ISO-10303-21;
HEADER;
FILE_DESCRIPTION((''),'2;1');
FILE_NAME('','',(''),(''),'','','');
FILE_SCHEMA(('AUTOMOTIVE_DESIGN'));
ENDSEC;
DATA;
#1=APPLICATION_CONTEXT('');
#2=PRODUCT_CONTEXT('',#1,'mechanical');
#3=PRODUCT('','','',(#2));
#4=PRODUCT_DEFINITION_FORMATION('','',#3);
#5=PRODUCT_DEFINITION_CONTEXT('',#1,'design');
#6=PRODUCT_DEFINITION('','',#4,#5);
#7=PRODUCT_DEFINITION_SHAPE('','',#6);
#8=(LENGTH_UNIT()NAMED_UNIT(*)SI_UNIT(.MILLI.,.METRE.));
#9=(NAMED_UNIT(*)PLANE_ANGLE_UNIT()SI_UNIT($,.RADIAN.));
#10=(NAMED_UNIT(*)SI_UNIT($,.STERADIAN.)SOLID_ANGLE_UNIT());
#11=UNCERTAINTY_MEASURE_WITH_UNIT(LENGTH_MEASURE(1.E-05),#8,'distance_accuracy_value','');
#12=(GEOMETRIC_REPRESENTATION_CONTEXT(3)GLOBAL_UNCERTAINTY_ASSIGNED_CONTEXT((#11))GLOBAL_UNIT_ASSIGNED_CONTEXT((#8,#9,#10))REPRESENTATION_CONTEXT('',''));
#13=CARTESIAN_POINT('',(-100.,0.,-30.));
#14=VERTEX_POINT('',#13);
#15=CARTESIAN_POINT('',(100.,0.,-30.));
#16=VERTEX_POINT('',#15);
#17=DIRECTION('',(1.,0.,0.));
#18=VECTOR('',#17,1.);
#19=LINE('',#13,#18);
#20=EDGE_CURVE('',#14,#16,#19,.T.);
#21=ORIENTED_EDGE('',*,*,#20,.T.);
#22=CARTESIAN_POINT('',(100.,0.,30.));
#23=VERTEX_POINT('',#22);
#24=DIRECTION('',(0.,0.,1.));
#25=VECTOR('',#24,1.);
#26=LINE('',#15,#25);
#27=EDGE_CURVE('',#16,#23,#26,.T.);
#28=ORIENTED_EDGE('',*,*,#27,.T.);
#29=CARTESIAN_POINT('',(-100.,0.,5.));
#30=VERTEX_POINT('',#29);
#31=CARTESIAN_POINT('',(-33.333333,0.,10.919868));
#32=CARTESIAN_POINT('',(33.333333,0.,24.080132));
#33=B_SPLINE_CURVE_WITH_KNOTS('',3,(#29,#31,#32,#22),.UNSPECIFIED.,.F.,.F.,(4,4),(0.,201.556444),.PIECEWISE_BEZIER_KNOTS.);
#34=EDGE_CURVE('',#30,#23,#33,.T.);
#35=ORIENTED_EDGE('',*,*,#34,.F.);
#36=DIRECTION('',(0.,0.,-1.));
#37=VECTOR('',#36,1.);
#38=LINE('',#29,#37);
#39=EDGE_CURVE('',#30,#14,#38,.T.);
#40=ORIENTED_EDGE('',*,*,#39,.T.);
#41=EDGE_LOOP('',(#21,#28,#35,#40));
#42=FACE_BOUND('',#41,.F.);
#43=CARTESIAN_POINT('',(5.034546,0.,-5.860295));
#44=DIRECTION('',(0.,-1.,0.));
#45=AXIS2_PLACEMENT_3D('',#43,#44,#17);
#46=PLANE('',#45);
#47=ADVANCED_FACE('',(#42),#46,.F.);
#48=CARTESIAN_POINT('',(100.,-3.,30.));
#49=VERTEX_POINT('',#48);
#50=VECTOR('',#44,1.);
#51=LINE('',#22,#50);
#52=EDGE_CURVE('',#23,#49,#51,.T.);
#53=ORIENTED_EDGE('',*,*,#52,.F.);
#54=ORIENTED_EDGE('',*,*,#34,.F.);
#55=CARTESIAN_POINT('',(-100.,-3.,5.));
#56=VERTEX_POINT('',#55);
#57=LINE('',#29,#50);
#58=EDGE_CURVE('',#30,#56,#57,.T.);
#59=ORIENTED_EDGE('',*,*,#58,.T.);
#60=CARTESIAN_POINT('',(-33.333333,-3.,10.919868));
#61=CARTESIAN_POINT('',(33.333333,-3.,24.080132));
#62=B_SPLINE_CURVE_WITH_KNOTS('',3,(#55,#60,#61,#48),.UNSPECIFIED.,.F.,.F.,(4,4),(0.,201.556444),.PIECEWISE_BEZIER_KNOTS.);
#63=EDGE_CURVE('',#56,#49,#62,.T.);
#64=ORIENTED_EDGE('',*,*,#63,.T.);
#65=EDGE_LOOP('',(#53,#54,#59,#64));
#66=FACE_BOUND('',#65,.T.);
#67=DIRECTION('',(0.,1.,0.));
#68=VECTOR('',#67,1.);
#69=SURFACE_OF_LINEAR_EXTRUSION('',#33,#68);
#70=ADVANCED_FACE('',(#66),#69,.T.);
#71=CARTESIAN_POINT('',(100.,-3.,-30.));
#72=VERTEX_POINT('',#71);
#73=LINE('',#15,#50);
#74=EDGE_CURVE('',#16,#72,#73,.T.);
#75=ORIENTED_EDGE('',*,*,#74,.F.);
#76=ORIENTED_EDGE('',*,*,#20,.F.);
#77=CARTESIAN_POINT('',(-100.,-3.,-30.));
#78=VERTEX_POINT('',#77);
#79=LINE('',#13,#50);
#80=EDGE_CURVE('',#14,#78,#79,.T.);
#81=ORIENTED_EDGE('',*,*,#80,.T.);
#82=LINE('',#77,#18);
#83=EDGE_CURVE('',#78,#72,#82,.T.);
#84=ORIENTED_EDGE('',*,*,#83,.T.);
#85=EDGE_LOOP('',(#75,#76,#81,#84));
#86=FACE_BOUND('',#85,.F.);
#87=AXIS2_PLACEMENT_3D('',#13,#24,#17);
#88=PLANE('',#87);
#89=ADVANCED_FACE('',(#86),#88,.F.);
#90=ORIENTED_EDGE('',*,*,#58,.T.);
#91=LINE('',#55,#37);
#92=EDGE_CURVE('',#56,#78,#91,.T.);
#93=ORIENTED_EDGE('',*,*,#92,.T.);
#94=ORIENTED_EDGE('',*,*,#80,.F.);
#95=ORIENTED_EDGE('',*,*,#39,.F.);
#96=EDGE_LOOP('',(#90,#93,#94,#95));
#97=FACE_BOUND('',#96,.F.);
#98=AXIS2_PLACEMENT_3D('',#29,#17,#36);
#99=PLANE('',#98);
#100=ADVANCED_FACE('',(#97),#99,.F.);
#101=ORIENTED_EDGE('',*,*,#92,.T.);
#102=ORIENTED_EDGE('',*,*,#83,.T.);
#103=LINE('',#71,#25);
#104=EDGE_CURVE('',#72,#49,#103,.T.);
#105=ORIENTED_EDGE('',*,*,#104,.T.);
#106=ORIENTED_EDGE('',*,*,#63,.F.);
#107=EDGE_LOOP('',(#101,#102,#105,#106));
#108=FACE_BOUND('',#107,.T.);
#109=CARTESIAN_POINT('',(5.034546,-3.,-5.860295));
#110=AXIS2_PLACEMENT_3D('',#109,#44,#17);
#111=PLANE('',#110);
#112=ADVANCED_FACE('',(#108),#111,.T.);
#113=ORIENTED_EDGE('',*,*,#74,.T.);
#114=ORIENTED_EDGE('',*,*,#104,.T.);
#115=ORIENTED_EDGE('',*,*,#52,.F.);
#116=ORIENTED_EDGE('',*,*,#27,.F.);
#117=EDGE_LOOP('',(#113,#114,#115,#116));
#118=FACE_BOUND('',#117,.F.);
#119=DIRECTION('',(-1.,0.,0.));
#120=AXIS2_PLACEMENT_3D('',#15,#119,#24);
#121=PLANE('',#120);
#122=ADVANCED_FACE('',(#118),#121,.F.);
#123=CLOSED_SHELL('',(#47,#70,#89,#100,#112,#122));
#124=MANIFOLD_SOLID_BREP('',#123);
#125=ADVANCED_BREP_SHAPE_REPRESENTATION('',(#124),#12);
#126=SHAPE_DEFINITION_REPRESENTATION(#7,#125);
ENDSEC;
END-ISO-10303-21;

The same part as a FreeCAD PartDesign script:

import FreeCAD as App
import Part
import Sketcher

V = App.Vector
Q = App.Units.Quantity

doc = App.newDocument("Part")
body = doc.addObject("PartDesign::Body", "Body")

sketch1 = body.newObject("Sketcher::SketchObject", "Sketch")
sketch1.AttachmentSupport = (doc.getObject("XZ_Plane"), [""])
sketch1.MapMode = "FlatFace"
sketch1.addGeometry(Part.LineSegment(V(-100, -30, 0), V(100, -30, 0)), False)
sketch1.addGeometry(Part.LineSegment(V(100, -30, 0), V(100, 30, 0)), False)
sketch1.addGeometry(Part.BSplineCurve([V(-100, 5, 0), V(-33.333333, 10.919868, 0), V(33.333333, 24.080132, 0), V(100, 30, 0)], [4, 4], [0, 201.556444], False, 3, [1, 1, 1, 1], False), False)
sketch1.addGeometry(Part.LineSegment(V(-100, 5, 0), V(-100, -30, 0)), False)
sketch1.addConstraint(Sketcher.Constraint("Block", 2))
sketch1.addConstraint(Sketcher.Constraint("Coincident", 0, 2, 1, 1))
sketch1.addConstraint(Sketcher.Constraint("Coincident", 1, 2, 2, 2))
sketch1.addConstraint(Sketcher.Constraint("Coincident", 2, 1, 3, 1))
sketch1.addConstraint(Sketcher.Constraint("Coincident", 3, 2, 0, 1))
sketch1.addConstraint(Sketcher.Constraint("Horizontal", 0))
sketch1.addConstraint(Sketcher.Constraint("Vertical", 1))
sketch1.addConstraint(Sketcher.Constraint("Vertical", 3))
sketch1.addConstraint(Sketcher.Constraint("DistanceY", 1, 1, 1, 2, Q("60 mm")))
pad1 = body.newObject("PartDesign::Pad", "Pad")
pad1.Profile = sketch1
pad1.Length = 3

doc.recompute()
